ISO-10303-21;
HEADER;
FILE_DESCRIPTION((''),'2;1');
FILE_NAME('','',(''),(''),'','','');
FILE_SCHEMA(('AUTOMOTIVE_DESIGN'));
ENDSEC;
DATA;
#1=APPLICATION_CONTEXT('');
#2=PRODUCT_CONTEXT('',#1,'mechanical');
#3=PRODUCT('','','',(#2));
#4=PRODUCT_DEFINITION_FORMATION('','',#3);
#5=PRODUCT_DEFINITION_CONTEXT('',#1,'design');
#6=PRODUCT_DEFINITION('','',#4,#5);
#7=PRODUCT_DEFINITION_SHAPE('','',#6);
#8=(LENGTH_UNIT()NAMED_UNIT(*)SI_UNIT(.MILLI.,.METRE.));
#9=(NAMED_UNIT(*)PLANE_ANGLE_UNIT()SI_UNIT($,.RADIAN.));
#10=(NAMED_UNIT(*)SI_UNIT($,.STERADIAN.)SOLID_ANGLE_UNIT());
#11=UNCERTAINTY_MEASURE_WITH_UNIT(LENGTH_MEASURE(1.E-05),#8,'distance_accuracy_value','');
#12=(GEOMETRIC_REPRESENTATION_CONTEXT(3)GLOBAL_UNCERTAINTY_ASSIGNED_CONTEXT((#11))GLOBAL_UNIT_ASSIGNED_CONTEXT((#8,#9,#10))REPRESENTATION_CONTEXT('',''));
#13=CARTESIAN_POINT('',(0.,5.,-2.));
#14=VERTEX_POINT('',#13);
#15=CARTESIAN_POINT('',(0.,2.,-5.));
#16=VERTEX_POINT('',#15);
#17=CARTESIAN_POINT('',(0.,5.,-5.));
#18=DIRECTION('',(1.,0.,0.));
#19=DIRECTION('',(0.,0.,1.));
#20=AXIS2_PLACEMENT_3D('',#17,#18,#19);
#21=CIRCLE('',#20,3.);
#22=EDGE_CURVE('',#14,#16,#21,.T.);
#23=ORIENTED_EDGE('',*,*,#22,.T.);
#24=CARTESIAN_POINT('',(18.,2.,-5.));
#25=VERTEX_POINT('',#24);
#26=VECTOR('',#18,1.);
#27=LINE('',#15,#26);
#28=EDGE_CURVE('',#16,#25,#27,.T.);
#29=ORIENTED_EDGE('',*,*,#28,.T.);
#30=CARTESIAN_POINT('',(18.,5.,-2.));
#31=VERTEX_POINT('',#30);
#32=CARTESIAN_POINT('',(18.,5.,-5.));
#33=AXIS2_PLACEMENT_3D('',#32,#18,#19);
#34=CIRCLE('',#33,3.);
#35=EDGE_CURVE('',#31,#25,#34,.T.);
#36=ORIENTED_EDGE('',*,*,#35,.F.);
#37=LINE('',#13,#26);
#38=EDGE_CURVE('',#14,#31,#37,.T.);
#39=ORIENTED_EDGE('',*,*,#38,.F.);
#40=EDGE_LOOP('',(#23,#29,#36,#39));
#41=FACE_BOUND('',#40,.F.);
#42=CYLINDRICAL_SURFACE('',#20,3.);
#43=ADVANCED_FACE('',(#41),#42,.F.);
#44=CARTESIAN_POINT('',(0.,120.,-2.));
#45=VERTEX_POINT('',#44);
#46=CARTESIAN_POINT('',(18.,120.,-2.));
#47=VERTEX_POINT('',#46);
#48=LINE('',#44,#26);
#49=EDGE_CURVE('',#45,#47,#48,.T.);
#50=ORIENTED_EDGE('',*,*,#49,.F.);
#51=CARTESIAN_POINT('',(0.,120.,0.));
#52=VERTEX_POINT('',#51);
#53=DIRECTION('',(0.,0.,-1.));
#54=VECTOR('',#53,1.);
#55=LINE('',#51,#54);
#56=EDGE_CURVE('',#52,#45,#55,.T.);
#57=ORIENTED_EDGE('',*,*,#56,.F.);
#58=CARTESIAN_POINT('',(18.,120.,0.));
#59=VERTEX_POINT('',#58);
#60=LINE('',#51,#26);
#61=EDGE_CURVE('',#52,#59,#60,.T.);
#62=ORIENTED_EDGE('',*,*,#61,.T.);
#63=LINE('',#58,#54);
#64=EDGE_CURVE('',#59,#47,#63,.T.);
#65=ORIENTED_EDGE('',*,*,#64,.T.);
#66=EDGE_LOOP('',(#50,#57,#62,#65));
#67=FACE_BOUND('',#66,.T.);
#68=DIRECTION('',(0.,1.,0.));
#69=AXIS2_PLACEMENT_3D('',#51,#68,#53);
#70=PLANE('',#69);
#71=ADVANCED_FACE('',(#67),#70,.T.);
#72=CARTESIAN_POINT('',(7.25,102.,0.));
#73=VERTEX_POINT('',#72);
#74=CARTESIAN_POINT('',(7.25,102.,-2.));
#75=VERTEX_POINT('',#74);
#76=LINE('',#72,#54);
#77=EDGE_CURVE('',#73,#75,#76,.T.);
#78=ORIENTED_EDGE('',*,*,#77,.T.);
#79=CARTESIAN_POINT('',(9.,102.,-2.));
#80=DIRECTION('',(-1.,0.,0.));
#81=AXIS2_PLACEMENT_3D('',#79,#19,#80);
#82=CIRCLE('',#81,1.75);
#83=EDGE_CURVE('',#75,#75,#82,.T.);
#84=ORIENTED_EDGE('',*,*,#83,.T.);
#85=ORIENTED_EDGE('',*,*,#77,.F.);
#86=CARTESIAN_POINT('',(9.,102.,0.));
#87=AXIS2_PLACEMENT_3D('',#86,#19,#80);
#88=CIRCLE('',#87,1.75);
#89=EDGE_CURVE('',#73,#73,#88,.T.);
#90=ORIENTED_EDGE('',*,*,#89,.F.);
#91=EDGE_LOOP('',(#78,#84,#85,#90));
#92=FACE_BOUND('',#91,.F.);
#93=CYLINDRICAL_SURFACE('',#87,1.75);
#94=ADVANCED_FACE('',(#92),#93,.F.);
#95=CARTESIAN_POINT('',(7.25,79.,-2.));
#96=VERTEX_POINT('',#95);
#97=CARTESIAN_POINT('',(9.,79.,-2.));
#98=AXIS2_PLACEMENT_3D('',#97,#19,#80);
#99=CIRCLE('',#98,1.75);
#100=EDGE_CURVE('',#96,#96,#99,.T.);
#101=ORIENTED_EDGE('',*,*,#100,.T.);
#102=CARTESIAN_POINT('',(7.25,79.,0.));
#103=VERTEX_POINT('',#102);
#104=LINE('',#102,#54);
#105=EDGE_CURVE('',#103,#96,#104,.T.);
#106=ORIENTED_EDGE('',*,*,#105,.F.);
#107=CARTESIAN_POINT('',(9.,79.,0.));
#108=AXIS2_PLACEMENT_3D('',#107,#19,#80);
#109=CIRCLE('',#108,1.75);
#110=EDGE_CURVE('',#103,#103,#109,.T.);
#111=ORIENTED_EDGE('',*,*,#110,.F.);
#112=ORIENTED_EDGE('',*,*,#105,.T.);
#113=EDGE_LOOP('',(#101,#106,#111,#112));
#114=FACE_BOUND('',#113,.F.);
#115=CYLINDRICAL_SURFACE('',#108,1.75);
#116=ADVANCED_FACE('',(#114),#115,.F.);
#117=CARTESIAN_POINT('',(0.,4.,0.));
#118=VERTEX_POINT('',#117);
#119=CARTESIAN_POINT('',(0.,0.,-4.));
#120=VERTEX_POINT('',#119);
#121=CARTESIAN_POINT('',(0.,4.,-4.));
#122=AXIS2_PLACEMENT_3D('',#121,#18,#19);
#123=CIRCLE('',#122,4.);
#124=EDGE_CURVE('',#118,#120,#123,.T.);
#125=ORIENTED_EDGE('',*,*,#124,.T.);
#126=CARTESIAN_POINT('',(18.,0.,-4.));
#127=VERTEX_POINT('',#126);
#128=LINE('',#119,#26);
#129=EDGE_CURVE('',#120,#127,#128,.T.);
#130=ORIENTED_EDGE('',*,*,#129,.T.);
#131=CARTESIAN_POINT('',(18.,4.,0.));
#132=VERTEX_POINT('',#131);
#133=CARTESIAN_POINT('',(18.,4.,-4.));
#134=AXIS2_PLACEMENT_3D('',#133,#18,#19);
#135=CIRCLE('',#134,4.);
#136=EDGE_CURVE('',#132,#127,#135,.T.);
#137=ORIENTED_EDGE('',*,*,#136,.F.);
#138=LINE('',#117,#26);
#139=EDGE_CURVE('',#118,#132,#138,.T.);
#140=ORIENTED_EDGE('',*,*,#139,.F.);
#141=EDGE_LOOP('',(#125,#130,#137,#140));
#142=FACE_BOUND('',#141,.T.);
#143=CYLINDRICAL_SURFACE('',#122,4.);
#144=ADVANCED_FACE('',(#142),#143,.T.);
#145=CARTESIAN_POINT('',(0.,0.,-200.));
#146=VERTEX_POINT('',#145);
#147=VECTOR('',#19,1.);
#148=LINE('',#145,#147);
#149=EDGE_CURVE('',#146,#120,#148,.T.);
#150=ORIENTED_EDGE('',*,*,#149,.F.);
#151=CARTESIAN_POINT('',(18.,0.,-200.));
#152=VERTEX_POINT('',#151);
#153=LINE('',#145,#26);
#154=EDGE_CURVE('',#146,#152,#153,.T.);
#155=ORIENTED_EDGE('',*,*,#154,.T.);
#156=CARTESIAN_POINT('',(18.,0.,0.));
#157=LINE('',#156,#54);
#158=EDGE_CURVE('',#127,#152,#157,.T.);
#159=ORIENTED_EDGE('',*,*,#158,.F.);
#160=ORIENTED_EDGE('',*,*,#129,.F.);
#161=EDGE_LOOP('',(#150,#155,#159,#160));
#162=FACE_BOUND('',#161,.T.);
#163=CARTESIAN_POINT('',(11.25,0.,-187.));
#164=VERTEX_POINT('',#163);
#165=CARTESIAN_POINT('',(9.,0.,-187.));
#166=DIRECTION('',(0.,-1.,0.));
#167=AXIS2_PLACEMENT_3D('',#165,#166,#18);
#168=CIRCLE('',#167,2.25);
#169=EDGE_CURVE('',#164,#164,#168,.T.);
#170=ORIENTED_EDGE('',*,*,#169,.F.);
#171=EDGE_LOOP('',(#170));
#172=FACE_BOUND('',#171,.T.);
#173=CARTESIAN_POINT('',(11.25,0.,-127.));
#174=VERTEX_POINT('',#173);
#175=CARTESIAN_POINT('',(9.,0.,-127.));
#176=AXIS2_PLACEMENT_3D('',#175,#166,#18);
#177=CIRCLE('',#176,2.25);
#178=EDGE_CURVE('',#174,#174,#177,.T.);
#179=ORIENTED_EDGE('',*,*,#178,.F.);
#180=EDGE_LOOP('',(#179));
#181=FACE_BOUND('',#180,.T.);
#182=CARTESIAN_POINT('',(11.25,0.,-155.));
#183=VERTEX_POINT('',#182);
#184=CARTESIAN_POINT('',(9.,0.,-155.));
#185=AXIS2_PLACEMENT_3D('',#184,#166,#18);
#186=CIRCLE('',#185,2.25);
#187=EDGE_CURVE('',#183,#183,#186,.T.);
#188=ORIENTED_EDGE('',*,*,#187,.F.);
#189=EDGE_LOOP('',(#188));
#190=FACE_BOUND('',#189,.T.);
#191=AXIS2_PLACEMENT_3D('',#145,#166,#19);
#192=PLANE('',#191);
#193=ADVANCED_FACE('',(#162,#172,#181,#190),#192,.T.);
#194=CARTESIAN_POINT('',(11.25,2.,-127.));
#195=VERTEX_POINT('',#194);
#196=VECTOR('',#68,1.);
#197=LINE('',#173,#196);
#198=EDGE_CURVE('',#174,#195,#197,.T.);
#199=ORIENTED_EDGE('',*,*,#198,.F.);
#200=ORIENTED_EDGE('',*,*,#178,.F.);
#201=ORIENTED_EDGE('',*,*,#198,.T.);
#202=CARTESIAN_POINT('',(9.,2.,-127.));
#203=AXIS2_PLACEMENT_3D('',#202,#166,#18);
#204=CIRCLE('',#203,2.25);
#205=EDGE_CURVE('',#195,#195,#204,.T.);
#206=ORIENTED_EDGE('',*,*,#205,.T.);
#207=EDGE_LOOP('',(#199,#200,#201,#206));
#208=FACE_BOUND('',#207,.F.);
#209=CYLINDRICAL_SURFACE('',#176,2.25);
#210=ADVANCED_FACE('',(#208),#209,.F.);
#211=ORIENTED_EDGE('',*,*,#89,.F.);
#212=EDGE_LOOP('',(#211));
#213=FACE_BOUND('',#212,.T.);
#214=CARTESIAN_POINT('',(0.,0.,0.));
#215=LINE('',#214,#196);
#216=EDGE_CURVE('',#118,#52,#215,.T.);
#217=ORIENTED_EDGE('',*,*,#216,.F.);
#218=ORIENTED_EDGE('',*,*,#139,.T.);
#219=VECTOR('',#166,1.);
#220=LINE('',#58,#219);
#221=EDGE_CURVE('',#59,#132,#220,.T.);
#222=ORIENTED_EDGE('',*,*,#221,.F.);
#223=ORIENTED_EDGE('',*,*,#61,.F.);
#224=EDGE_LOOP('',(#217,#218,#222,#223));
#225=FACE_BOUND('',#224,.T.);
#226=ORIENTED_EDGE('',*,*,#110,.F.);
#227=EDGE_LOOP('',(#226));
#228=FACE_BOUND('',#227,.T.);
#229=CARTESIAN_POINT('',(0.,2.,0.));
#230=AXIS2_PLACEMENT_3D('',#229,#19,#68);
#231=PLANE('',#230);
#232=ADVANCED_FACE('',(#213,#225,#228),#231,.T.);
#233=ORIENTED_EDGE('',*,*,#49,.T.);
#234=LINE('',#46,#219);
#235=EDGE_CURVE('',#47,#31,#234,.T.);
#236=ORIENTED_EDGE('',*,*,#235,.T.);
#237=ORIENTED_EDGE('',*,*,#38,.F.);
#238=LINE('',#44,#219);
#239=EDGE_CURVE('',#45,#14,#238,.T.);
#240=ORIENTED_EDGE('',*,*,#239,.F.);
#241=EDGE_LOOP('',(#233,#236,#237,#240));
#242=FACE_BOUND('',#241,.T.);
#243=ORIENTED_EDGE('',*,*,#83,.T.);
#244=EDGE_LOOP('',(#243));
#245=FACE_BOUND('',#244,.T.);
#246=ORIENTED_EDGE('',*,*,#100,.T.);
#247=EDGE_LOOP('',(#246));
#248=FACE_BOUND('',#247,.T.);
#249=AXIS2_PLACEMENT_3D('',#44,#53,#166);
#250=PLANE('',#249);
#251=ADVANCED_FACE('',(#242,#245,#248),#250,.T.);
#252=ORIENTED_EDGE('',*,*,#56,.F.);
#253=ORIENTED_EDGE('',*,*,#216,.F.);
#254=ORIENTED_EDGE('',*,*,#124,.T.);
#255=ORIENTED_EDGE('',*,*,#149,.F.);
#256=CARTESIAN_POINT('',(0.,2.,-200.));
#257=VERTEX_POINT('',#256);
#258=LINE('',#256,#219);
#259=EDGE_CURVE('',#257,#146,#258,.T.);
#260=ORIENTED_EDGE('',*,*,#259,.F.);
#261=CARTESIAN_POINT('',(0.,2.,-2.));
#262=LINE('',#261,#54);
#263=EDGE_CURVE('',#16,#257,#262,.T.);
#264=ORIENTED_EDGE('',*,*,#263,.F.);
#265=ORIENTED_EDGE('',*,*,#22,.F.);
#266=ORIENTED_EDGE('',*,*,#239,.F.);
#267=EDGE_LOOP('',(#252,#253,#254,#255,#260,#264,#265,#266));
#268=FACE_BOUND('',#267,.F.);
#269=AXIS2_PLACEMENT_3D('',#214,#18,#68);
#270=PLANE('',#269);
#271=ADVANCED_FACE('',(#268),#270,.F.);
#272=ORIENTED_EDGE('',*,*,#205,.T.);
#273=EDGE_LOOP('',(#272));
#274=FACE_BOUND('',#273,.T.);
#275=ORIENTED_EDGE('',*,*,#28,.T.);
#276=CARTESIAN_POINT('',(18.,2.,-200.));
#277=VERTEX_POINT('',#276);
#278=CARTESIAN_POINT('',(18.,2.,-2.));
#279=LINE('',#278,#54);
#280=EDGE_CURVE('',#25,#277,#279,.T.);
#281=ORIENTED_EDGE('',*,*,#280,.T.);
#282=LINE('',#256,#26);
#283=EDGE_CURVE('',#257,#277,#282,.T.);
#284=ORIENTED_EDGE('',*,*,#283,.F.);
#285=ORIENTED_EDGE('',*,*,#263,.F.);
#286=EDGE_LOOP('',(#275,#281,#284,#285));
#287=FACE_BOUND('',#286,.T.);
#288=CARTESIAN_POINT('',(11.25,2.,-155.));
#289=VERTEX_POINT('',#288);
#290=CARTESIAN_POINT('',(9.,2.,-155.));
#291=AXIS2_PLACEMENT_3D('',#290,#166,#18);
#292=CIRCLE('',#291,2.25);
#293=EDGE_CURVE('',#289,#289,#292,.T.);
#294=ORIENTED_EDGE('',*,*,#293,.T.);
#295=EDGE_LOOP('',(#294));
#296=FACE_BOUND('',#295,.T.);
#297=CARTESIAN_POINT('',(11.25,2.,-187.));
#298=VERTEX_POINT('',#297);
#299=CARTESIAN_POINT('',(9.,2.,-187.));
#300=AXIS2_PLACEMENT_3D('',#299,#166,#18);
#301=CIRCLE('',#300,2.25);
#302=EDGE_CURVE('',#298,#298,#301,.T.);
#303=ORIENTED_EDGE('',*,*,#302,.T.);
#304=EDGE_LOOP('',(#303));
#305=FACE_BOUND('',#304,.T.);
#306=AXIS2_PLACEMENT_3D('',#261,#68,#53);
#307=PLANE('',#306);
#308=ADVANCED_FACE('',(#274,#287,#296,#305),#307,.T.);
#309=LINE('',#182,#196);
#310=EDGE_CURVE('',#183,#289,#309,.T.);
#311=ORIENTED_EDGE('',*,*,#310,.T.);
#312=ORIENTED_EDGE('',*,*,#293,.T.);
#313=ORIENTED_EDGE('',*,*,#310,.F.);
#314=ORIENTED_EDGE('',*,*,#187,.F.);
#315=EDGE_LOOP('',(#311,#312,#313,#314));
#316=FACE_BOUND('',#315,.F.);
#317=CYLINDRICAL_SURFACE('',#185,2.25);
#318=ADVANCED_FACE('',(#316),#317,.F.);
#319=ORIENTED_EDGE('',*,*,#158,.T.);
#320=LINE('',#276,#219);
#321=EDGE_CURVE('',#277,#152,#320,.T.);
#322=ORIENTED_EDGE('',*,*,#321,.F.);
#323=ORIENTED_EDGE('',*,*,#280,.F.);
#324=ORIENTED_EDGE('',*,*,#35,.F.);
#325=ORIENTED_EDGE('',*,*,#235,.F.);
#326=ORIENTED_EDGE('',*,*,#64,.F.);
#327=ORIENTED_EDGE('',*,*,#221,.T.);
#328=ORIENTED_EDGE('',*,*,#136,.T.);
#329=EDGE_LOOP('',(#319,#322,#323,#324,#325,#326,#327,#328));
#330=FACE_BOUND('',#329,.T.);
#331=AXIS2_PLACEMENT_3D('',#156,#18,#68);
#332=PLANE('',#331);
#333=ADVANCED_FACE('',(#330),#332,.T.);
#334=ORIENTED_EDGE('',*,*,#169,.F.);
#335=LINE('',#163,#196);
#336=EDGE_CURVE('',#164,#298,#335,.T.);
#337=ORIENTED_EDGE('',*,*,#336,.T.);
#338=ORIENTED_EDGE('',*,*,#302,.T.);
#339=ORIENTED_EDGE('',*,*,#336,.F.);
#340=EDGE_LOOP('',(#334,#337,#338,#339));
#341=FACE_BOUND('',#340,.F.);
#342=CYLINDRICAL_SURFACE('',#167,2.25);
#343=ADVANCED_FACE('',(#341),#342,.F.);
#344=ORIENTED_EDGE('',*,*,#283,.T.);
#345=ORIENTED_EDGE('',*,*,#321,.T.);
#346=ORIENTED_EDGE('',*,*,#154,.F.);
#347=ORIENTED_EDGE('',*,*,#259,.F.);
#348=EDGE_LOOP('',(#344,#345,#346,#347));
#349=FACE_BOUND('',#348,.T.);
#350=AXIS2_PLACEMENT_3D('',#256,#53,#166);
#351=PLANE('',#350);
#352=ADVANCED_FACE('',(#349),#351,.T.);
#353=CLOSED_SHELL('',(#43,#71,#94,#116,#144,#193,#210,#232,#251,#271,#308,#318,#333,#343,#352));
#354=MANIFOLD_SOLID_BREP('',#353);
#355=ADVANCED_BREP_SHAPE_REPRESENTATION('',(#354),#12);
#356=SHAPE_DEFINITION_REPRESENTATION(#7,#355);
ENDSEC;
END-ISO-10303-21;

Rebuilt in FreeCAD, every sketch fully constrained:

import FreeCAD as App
import Part
import Sketcher
Q = App.Units.Quantity


def edges_at(feature, points):
    """Names of the edges that pass closest to the given points."""
    edges = feature.Shape.Edges
    near = lambda p: min(range(len(edges)), key=lambda i: edges[i].distToShape(Part.Vertex(*p))[0])
    return sorted({f"Edge{near(p) + 1}" for p in points})


def add_polygon(sketch, points):
    """Adds a closed chain of lines whose ends are joined by coincident constraints."""
    first, n = sketch.GeometryCount, len(points)
    for a, b in zip(points, points[1:] + points[:1]):
        sketch.addGeometry(Part.LineSegment(App.Vector(*a, 0), App.Vector(*b, 0)), False)
    for i in range(n):
        sketch.addConstraint(Sketcher.Constraint("Coincident", first + i, 2, first + (i + 1) % n, 1))

doc = App.newDocument("Part")
body = doc.addObject("PartDesign::Body", "Body")

sketch1 = body.newObject("Sketcher::SketchObject", "Sketch")
sketch1.AttachmentSupport = (doc.getObject("YZ_Plane"), [""])
sketch1.MapMode = "FlatFace"
add_polygon(sketch1, [(120, 0), (0, 0), (0, -200), (2, -200), (2, -2), (120, -2)])
sketch1.addConstraint(Sketcher.Constraint("Horizontal", 0))
sketch1.addConstraint(Sketcher.Constraint("Vertical", 1))
sketch1.addConstraint(Sketcher.Constraint("Horizontal", 2))
sketch1.addConstraint(Sketcher.Constraint("Vertical", 3))
sketch1.addConstraint(Sketcher.Constraint("Horizontal", 4))
sketch1.addConstraint(Sketcher.Constraint("Vertical", 5))
sketch1.addConstraint(Sketcher.Constraint("Coincident", 0, 2, -1, 1))
sketch1.addConstraint(Sketcher.Constraint("Equal", 2, 5))
sketch1.addConstraint(Sketcher.Constraint("DistanceX", 0, 2, 0, 1, Q("120 mm")))
sketch1.addConstraint(Sketcher.Constraint("DistanceX", 2, 1, 2, 2, Q("2 mm")))
sketch1.addConstraint(Sketcher.Constraint("DistanceY", 1, 2, 1, 1, Q("200 mm")))
pad1 = body.newObject("PartDesign::Pad", "Pad")
pad1.Profile = sketch1
pad1.Length = 18
doc.recompute()

fillet = body.newObject("PartDesign::Fillet", "Fillet")
fillet.Base = (pad1, edges_at(pad1, [(9, 2, -2)]))
fillet.Radius = 3
doc.recompute()

fillet2 = body.newObject("PartDesign::Fillet", "Fillet001")
fillet2.Base = (fillet, edges_at(fillet, [(9, 0, 0)]))
fillet2.Radius = 4

sketch2 = body.newObject("Sketcher::SketchObject", "Sketch001")
sketch2.AttachmentSupport = (doc.getObject("XZ_Plane"), [""])
sketch2.MapMode = "FlatFace"
sketch2.addGeometry(Part.Circle(App.Vector(9, -187, 0), App.Vector(0, 0, 1), 2.2), False)
sketch2.addGeometry(Part.Circle(App.Vector(9, -155, 0), App.Vector(0, 0, 1), 2.2), False)
sketch2.addGeometry(Part.Circle(App.Vector(9, -127, 0), App.Vector(0, 0, 1), 2.2), False)
sketch2.addConstraint(Sketcher.Constraint("Equal", 0, 1))
sketch2.addConstraint(Sketcher.Constraint("Equal", 1, 2))
sketch2.addConstraint(Sketcher.Constraint("Vertical", 0, 3, 1, 3))
sketch2.addConstraint(Sketcher.Constraint("Vertical", 1, 3, 2, 3))
sketch2.addConstraint(Sketcher.Constraint("Diameter", 0, Q("4.5 mm")))
sketch2.addConstraint(Sketcher.Constraint("DistanceY", 0, 3, 1, 3, Q("32 mm")))
sketch2.addConstraint(Sketcher.Constraint("DistanceY", 1, 3, 2, 3, Q("28 mm")))
sketch2.addConstraint(Sketcher.Constraint("DistanceX", -1, 1, 0, 3, Q("9 mm")))
sketch2.addConstraint(Sketcher.Constraint("DistanceY", 0, 3, -1, 1, Q("187 mm")))
pocket1 = body.newObject("PartDesign::Pocket", "Pocket")
pocket1.Profile = sketch2
pocket1.Length = 5

sketch3 = body.newObject("Sketcher::SketchObject", "Sketch002")
sketch3.AttachmentSupport = (doc.getObject("XY_Plane"), [""])
sketch3.MapMode = "FlatFace"
sketch3.addGeometry(Part.Circle(App.Vector(9, 102, 0), App.Vector(0, 0, 1), 1.8), False)
sketch3.addGeometry(Part.Circle(App.Vector(9, 79, 0), App.Vector(0, 0, 1), 1.8), False)
sketch3.addConstraint(Sketcher.Constraint("Equal", 0, 1))
sketch3.addConstraint(Sketcher.Constraint("Vertical", 0, 3, 1, 3))
sketch3.addConstraint(Sketcher.Constraint("Diameter", 0, Q("3.5 mm")))
sketch3.addConstraint(Sketcher.Constraint("DistanceY", 1, 3, 0, 3, Q("23 mm")))
sketch3.addConstraint(Sketcher.Constraint("DistanceX", -1, 1, 0, 3, Q("9 mm")))
sketch3.addConstraint(Sketcher.Constraint("DistanceY", -1, 1, 0, 3, Q("102 mm")))
pocket2 = body.newObject("PartDesign::Pocket", "Pocket001")
pocket2.Profile = sketch3
pocket2.Length = 5

doc.recompute()
